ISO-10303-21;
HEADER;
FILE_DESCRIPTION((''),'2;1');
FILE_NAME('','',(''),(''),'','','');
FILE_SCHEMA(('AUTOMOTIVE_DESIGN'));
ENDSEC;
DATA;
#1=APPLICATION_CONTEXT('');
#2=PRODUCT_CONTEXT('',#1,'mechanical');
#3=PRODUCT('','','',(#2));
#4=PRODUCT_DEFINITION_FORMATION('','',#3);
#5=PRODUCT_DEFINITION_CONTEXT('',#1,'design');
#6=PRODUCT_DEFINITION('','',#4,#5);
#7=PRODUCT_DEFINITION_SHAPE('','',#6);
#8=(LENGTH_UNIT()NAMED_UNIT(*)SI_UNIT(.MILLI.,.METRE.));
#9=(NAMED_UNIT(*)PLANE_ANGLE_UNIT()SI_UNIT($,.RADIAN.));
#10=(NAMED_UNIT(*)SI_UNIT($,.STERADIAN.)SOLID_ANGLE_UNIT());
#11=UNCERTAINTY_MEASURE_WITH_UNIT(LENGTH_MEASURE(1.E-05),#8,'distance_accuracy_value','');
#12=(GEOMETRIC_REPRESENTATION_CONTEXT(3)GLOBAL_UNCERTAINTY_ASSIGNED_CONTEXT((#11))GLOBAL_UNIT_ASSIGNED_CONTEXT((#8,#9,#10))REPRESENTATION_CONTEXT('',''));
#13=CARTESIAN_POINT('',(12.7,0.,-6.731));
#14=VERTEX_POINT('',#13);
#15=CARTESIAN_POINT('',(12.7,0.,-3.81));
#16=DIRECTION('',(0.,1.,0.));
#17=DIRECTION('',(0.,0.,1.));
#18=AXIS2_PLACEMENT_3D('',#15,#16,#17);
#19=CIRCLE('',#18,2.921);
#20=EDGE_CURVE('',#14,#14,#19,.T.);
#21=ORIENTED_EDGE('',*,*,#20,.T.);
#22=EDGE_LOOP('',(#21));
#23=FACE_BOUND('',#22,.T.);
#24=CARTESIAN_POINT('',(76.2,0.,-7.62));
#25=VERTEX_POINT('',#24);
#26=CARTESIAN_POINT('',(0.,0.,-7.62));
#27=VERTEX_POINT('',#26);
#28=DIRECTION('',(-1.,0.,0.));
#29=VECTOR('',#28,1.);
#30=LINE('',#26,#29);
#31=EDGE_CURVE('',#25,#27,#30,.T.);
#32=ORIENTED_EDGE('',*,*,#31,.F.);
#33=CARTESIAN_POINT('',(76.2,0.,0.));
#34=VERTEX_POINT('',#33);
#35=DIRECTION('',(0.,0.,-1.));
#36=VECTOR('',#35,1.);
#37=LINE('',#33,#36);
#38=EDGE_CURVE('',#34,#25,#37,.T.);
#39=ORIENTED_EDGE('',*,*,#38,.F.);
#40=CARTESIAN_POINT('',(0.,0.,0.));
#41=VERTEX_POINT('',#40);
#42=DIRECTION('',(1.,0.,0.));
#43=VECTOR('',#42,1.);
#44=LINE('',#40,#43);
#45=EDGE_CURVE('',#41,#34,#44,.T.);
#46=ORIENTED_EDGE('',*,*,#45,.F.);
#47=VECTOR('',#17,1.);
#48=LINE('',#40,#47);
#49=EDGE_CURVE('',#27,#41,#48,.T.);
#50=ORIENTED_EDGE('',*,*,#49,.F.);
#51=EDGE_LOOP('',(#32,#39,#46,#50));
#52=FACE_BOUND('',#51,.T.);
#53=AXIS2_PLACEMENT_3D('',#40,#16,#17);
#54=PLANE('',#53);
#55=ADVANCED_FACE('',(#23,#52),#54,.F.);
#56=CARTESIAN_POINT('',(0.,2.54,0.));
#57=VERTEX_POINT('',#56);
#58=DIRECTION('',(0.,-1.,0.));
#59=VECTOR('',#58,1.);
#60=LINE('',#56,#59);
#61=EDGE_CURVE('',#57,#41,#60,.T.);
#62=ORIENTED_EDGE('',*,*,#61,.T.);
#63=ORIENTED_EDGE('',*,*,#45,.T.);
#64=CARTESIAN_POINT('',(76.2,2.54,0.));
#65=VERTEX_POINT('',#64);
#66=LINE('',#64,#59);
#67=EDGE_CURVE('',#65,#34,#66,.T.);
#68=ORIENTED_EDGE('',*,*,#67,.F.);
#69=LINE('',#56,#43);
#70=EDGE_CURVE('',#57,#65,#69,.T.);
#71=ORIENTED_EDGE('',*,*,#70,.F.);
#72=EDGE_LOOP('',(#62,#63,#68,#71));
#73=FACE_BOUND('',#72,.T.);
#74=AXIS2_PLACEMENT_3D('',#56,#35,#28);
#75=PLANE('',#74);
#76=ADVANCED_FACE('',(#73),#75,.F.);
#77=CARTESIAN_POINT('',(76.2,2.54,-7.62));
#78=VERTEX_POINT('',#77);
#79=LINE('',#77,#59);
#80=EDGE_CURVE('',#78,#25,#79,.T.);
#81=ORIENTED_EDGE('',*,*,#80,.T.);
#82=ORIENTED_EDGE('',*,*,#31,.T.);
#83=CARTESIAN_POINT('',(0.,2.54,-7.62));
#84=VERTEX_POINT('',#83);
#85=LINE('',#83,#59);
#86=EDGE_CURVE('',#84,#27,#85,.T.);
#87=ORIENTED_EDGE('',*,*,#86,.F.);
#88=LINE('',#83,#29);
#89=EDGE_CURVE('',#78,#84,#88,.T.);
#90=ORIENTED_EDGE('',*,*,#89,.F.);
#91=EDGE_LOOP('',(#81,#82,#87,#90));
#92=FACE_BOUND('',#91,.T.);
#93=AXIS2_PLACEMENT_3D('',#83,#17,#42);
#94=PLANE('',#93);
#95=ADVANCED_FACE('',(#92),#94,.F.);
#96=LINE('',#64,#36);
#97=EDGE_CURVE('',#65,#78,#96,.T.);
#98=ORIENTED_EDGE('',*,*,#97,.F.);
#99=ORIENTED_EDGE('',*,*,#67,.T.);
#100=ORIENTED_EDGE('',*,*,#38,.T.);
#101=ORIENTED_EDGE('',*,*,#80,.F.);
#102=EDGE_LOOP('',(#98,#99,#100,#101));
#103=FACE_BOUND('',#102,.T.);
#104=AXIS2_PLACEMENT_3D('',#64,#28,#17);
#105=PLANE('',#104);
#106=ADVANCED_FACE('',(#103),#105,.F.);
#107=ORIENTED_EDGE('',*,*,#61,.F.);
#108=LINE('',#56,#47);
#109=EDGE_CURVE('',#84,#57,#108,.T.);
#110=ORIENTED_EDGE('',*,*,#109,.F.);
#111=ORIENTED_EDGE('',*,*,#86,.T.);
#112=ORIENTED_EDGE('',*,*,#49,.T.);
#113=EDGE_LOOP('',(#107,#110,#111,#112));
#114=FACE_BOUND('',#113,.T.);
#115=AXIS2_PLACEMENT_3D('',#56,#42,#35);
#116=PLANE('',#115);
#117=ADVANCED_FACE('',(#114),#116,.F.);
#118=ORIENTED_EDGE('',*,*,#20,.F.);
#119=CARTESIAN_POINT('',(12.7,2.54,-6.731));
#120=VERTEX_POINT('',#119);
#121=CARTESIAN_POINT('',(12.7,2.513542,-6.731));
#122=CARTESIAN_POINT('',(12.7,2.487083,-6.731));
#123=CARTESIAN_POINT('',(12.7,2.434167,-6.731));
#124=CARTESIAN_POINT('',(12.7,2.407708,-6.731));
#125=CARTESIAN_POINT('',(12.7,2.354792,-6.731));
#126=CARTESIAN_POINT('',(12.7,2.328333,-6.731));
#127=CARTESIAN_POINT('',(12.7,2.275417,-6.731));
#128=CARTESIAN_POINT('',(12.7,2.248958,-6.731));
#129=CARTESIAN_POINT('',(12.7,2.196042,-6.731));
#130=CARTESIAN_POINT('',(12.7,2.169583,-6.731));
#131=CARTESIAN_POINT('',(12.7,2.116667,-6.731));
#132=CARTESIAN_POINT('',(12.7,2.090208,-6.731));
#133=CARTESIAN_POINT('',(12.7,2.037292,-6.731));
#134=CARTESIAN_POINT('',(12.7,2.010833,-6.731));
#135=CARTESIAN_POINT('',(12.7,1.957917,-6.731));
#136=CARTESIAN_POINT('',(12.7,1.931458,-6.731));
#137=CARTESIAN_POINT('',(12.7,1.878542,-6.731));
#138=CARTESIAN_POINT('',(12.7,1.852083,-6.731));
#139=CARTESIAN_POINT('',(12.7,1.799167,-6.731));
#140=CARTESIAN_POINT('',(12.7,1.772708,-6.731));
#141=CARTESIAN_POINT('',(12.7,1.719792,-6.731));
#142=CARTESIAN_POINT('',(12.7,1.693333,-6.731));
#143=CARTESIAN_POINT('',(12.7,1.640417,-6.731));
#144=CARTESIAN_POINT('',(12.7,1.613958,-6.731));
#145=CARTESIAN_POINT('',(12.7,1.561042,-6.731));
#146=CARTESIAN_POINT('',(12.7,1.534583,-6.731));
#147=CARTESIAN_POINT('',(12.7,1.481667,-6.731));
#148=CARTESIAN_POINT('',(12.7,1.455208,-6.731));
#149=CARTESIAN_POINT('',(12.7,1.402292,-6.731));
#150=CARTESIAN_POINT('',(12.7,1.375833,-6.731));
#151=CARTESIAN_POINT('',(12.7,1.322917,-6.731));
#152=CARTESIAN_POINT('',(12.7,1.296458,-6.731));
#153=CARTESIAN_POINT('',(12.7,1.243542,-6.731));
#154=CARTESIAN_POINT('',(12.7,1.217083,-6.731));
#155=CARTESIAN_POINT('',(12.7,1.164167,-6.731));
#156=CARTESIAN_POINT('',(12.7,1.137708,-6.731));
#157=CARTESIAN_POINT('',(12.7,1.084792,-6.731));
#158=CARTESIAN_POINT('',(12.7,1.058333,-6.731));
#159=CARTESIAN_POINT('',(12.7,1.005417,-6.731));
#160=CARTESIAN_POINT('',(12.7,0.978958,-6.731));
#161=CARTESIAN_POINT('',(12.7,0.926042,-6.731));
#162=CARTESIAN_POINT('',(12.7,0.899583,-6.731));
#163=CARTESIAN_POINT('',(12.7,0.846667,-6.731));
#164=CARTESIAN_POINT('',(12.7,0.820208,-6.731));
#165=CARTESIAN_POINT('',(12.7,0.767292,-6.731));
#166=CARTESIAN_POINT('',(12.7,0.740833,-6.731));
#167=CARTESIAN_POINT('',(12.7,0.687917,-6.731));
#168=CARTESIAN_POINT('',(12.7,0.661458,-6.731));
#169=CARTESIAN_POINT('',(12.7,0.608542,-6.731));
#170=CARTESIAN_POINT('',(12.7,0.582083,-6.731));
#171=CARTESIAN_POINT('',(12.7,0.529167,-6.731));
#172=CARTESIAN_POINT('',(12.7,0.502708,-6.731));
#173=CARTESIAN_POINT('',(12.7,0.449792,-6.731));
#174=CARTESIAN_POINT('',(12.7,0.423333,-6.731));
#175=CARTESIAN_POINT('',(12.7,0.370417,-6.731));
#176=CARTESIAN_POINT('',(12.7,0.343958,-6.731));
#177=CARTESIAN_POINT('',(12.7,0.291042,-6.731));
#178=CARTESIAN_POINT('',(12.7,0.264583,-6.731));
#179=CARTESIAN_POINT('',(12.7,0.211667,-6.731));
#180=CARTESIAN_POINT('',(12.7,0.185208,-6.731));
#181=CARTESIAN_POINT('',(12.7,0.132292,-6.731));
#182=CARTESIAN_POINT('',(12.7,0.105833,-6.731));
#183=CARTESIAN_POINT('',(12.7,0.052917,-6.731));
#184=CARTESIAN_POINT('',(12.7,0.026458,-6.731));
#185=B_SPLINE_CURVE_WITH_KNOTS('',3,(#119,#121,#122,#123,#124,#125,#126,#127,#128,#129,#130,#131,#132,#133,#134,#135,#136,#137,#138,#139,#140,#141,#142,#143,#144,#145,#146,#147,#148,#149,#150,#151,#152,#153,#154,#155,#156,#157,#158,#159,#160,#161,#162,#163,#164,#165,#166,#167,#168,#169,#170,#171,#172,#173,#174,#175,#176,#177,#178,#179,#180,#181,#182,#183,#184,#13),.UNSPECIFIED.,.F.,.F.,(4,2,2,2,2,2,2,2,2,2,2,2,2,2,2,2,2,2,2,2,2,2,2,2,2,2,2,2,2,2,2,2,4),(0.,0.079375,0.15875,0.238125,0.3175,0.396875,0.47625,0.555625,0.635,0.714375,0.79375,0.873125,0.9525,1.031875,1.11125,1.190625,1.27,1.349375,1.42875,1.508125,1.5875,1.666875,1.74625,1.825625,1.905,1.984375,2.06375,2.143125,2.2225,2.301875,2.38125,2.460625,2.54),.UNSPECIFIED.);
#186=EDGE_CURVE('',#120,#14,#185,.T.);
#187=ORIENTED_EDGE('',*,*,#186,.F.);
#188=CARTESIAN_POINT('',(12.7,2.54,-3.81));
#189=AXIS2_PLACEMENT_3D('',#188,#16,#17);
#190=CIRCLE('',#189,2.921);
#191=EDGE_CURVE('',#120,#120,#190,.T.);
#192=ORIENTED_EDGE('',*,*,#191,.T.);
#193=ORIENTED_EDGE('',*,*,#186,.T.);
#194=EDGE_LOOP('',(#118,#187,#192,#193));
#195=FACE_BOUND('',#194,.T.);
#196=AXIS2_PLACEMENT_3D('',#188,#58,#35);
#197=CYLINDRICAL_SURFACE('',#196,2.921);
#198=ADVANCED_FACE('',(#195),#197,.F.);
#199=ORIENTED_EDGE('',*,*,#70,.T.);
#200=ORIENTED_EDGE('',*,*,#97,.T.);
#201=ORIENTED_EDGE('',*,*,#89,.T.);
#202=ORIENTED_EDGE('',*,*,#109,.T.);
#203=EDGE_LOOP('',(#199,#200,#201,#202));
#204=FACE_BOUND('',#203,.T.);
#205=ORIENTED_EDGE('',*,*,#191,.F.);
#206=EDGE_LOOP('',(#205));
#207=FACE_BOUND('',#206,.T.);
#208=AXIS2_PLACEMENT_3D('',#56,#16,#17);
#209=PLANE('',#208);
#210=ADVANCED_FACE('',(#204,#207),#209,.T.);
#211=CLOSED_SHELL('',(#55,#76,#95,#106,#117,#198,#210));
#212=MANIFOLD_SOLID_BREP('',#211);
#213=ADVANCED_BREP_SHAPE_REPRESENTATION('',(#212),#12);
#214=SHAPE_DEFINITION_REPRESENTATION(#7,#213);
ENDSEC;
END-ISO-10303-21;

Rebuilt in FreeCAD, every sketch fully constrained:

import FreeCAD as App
import Part
import Sketcher
from FreeCAD import Vector
Q = App.Units.Quantity

doc = App.newDocument("Part")
body = doc.addObject("PartDesign::Body", "Body")

# Sketch on XZ plane
sketch1 = doc.addObject("Sketcher::SketchObject", "Sketch")
body.addObject(sketch1)
sketch1.AttachmentSupport = (doc.XZ_Plane, [""])
sketch1.MapMode = "FlatFace"
sketch1.addGeometry([
    Part.LineSegment(Vector(0, -7.6, 0), Vector(0, 0, 0)),  # 0
    Part.LineSegment(Vector(0, 0, 0), Vector(76.2, 0, 0)),  # 1
    Part.LineSegment(Vector(76.2, 0, 0), Vector(76.2, -7.6, 0)),  # 2
    Part.LineSegment(Vector(76.2, -7.6, 0), Vector(0, -7.6, 0)),  # 3
    Part.Circle(Vector(12.7, -3.8, 0), Vector(0, 0, 1), 2.9),  # 4
], False)
sketch1.addConstraint([
    Sketcher.Constraint("Coincident", 0, 2, 1, 1),
    Sketcher.Constraint("Coincident", 1, 2, 2, 1),
    Sketcher.Constraint("Coincident", 2, 2, 3, 1),
    Sketcher.Constraint("Coincident", 3, 2, 0, 1),
    Sketcher.Constraint("Vertical", 0),
    Sketcher.Constraint("Horizontal", 1),
    Sketcher.Constraint("Vertical", 2),
    Sketcher.Constraint("Horizontal", 3),
    Sketcher.Constraint("Coincident", 0, 2, -1, 1),
    Sketcher.Constraint("Diameter", 4, Q("0.23 in")),
    Sketcher.Constraint("DistanceX", 1, 1, 1, 2, Q("3 in")),
    Sketcher.Constraint("DistanceY", 0, 1, 0, 2, Q("0.3 in")),
    Sketcher.Constraint("DistanceX", -1, 1, 4, 3, Q("0.5 in")),
    Sketcher.Constraint("DistanceY", 4, 3, -1, 1, Q("0.15 in")),
])
pad1 = doc.addObject("PartDesign::Pad", "Pad")
body.addObject(pad1)
pad1.Profile = sketch1
pad1.Length = Q("0.1 in")
pad1.Reversed = True

doc.recompute()
